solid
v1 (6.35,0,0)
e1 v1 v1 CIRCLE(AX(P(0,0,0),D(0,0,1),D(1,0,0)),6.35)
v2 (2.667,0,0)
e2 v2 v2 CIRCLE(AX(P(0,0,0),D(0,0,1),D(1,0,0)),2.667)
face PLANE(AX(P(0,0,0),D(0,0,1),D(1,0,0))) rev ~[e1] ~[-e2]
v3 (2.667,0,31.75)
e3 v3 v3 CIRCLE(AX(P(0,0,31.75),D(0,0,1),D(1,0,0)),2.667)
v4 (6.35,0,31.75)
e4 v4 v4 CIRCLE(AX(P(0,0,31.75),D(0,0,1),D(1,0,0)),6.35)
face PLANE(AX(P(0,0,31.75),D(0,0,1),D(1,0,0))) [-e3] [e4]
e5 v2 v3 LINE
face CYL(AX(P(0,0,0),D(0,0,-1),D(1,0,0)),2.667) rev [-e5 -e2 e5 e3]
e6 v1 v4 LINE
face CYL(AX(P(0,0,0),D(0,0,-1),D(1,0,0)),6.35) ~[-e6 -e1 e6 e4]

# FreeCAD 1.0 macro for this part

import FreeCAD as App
import Part
import Sketcher
from FreeCAD import Vector
Q = App.Units.Quantity

doc = App.newDocument("Part")
body = doc.addObject("PartDesign::Body", "Body")

# Sketch on XY plane
sketch1 = body.newObject("Sketcher::SketchObject", "Sketch")
sketch1.AttachmentSupport = (doc.getObject("XY_Plane"), [""])
sketch1.MapMode = "FlatFace"
sketch1.addGeometry([
    Part.Circle(Vector(0, 0, 0), Vector(0, 0, 1), 6.3),
    Part.Circle(Vector(0, 0, 0), Vector(0, 0, 1), 2.7),
], False)
sketch1.addConstraint([
    Sketcher.Constraint("Coincident", 0, 3, -1, 1),
    Sketcher.Constraint("Coincident", 1, 3, -1, 1),
    Sketcher.Constraint("Diameter", 0, Q("0.5 in")),
    Sketcher.Constraint("Diameter", 1, Q("0.21 in")),
])
pad1 = body.newObject("PartDesign::Pad", "Pad")
pad1.Profile = sketch1
pad1.Length = Q("1.25 in")

doc.recompute()
